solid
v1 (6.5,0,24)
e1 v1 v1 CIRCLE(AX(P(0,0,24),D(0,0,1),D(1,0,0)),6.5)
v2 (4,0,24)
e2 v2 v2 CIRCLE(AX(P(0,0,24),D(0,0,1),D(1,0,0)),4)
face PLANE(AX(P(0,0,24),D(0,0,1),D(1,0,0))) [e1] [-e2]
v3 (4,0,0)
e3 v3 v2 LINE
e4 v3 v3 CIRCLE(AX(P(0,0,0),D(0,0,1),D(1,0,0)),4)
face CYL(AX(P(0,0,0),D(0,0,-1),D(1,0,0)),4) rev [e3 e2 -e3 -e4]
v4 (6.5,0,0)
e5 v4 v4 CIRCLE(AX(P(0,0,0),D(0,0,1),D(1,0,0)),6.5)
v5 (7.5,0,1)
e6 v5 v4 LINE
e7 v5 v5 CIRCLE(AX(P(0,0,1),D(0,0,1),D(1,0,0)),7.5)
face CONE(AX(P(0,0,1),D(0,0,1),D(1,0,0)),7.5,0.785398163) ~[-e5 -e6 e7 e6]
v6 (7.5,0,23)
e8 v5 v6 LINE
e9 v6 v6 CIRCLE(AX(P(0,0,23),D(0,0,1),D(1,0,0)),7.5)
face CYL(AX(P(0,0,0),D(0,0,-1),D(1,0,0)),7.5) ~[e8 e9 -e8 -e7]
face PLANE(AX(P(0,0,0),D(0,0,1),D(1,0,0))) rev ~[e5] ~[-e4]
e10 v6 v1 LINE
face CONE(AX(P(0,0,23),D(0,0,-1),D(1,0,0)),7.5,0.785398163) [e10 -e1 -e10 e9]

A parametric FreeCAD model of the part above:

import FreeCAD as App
import Part
import Sketcher
Q = App.Units.Quantity


def edges_at(feature, points):
    """Names of the edges that pass closest to the given points."""
    edges = feature.Shape.Edges
    near = lambda p: min(range(len(edges)), key=lambda i: edges[i].distToShape(Part.Vertex(*p))[0])
    return sorted({f"Edge{near(p) + 1}" for p in points})

doc = App.newDocument("Part")
params = doc.addObject("Spreadsheet::Sheet", "Params")
for row, (alias, value) in enumerate([
    ("sketch1_diameter", "15 mm"),
    ("sketch1_diameter2", "8 mm"),
    ("pad1_length", "24 mm"),
    ("chamfer_size", "1 mm"),
    ("chamfer2_size", "1 mm"),
], start=1):
    params.set(f"A{row}", alias)
    params.set(f"B{row}", "=" + value)
    params.setAlias(f"B{row}", alias)

body = doc.addObject("PartDesign::Body", "Body")

# Sketch on XY plane
sketch1 = body.newObject("Sketcher::SketchObject", "Sketch")
sketch1.AttachmentSupport = (doc.getObject("XY_Plane"), [""])
sketch1.MapMode = "FlatFace"
sketch1.addGeometry(Part.Circle(App.Vector(0, 0, 0), App.Vector(0, 0, 1), 7.5), False)
sketch1.addGeometry(Part.Circle(App.Vector(0, 0, 0), App.Vector(0, 0, 1), 4), False)
sketch1.addConstraint(Sketcher.Constraint("Coincident", 0, 3, -1, 1))
sketch1.addConstraint(Sketcher.Constraint("Coincident", 1, 3, -1, 1))
sketch1.addConstraint(Sketcher.Constraint("Diameter", 0, Q("15 mm")))
sketch1.addConstraint(Sketcher.Constraint("Diameter", 1, Q("8 mm")))
sketch1.setExpression("Constraints[2]", "Params.sketch1_diameter")
sketch1.setExpression("Constraints[3]", "Params.sketch1_diameter2")
pad1 = body.newObject("PartDesign::Pad", "Pad")
pad1.Profile = sketch1
pad1.setExpression("Length", "Params.pad1_length")
doc.recompute()

chamfer = body.newObject("PartDesign::Chamfer", "Chamfer")
chamfer.Base = (pad1, edges_at(pad1, [(-7.5, 0, 24)]))
chamfer.setExpression("Size", "Params.chamfer_size")
doc.recompute()

chamfer2 = body.newObject("PartDesign::Chamfer", "Chamfer001")
chamfer2.Base = (chamfer, edges_at(chamfer, [(-7.5, 0, 0)]))
chamfer2.setExpression("Size", "Params.chamfer2_size")

doc.recompute()
